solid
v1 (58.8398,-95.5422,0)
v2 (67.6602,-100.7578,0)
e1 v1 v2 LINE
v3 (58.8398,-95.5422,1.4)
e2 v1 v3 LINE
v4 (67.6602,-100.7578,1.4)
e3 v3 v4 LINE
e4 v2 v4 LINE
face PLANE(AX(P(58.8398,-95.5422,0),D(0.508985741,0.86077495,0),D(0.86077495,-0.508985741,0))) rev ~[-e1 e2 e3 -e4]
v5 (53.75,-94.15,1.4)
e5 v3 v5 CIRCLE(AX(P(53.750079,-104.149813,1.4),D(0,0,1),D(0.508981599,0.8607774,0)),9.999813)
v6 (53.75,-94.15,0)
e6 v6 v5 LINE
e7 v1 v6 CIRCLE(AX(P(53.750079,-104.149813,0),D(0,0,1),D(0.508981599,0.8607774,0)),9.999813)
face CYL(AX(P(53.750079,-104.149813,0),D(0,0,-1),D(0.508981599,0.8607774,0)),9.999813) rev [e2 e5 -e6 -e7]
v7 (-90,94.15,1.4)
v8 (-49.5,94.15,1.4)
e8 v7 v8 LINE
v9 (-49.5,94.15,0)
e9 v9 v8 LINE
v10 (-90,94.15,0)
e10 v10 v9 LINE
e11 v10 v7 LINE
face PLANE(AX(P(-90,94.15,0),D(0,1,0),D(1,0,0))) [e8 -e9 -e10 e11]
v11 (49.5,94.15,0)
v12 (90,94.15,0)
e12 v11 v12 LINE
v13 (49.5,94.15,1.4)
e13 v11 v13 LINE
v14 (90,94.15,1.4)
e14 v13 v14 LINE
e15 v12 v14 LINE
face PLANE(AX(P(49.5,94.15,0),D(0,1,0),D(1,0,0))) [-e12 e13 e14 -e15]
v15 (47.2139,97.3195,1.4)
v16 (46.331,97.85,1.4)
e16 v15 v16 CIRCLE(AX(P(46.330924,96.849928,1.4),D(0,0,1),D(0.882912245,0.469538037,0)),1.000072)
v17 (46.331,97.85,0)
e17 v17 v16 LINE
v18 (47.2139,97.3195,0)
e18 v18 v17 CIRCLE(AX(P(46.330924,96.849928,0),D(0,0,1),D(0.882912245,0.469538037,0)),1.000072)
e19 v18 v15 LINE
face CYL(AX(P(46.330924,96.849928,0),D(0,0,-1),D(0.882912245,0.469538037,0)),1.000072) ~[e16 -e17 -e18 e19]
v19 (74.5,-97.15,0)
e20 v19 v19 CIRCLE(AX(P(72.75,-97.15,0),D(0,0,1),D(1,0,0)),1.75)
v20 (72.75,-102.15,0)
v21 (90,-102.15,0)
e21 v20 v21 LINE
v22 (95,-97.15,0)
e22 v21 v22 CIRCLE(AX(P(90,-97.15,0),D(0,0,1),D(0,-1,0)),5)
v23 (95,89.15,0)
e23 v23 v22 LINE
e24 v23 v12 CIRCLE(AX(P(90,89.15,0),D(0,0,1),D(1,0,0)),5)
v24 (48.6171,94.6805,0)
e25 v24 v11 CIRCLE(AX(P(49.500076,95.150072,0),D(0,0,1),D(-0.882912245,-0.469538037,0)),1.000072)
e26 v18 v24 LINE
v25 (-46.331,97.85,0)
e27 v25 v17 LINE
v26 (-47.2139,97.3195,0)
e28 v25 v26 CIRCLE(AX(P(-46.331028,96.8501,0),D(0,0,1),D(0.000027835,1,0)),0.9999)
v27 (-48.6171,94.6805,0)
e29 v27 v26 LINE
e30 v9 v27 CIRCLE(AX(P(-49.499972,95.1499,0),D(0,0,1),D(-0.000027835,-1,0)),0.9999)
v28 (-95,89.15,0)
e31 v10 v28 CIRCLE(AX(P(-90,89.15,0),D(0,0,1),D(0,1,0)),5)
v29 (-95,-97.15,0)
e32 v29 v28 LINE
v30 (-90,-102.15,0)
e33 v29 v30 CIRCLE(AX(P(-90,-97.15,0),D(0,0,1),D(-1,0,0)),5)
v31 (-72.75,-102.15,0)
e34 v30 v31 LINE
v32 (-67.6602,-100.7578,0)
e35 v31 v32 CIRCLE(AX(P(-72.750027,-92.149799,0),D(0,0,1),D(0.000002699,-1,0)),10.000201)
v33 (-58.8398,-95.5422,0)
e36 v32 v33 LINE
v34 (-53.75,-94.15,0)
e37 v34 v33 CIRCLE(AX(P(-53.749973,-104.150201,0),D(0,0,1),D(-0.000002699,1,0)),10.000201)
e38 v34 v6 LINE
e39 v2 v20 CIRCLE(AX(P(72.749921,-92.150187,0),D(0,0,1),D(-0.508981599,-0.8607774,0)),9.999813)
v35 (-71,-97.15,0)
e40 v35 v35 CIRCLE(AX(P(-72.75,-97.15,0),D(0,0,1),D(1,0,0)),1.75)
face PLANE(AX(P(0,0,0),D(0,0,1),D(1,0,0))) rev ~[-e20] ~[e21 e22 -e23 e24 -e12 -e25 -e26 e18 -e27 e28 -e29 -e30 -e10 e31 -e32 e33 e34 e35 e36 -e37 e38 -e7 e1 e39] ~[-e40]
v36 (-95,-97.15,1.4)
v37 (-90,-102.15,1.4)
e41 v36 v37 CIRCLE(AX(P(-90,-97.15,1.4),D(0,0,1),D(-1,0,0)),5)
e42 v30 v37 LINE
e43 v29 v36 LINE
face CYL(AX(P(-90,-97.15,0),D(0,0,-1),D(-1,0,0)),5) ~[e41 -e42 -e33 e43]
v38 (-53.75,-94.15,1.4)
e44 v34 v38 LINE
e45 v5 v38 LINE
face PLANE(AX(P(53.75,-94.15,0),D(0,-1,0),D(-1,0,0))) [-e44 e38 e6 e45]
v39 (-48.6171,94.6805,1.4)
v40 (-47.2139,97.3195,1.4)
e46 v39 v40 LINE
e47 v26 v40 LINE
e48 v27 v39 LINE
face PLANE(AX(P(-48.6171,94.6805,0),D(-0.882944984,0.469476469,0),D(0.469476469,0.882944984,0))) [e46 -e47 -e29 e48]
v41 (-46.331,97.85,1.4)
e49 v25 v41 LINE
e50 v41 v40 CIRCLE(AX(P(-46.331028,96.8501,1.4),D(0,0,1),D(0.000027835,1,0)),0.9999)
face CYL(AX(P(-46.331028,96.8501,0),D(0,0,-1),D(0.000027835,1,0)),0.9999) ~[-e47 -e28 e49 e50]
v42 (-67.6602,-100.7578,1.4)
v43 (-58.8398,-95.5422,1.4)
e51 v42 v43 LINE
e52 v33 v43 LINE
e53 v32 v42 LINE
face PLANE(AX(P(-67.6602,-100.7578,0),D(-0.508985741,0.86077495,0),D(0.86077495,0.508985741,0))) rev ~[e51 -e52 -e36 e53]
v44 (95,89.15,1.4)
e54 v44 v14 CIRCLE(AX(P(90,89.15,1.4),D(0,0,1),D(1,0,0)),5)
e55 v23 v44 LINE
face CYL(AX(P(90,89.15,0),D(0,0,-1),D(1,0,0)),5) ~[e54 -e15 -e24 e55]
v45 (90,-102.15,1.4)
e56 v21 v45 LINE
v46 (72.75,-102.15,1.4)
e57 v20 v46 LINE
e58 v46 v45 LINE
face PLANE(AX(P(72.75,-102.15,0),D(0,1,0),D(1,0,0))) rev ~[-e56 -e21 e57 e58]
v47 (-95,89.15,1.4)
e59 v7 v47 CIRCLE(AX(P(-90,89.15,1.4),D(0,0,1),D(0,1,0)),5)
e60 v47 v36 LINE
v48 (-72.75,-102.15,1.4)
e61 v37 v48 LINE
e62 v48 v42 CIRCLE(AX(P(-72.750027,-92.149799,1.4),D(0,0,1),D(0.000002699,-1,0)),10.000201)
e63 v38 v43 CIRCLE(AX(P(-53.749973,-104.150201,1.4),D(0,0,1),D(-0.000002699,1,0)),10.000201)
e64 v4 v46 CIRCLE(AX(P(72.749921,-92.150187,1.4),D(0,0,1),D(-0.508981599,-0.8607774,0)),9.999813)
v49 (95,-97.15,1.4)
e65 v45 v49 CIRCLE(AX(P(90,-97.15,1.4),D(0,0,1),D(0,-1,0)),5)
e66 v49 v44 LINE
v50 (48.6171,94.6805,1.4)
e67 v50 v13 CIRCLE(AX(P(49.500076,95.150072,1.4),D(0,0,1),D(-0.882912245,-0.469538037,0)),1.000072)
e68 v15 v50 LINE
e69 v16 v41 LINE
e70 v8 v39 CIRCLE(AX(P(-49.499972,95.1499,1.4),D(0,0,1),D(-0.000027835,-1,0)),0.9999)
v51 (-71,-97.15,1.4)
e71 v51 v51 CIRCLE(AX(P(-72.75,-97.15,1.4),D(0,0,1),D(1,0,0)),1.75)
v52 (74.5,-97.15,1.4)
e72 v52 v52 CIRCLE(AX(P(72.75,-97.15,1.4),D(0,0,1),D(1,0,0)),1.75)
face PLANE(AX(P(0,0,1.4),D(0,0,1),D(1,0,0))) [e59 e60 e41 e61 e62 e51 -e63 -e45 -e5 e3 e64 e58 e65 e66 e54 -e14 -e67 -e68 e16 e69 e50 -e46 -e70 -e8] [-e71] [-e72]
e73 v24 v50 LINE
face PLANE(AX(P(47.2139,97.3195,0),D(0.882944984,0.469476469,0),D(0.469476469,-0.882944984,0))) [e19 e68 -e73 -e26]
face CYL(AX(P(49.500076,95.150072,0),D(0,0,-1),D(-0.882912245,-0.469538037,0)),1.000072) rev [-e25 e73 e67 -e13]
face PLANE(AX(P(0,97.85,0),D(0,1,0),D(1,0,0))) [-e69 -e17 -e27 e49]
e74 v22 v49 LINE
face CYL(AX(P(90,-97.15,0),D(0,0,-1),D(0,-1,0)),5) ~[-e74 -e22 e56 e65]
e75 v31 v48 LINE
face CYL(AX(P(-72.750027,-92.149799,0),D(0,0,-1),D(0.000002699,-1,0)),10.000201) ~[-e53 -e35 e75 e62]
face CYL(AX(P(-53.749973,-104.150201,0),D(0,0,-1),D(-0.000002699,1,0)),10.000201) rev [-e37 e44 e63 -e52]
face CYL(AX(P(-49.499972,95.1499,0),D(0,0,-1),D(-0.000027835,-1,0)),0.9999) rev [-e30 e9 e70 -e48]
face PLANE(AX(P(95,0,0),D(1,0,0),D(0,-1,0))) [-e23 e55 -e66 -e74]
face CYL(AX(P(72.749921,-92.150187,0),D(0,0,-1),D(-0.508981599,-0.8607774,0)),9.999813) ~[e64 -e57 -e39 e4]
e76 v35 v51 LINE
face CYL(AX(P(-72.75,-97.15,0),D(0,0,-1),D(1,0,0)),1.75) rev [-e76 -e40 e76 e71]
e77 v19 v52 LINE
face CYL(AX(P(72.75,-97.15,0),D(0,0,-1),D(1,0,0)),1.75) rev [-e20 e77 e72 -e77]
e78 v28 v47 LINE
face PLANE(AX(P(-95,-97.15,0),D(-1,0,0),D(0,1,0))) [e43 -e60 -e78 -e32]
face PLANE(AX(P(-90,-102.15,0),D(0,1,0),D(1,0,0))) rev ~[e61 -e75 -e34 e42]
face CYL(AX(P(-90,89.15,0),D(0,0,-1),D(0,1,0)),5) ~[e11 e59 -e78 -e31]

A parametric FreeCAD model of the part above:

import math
import FreeCAD as App
import Part
import Sketcher
from FreeCAD import Vector
Q = App.Units.Quantity

doc = App.newDocument("Part")
body = doc.addObject("PartDesign::Body", "Body")

sketch1 = doc.addObject("Sketcher::SketchObject", "Sketch")
body.addObject(sketch1)
sketch1.AttachmentSupport = (doc.XY_Plane, [""])
sketch1.MapMode = "FlatFace"
sketch1.addGeometry(Part.ArcOfCircle(Part.Circle(Vector(53.8, -104.2, 0), Vector(0, 0, 1), 10), math.radians(59), math.radians(90)), False)
sketch1.addGeometry(Part.LineSegment(Vector(58.8, -95.5, 0), Vector(67.7, -100.8, 0)), False)
sketch1.addGeometry(Part.ArcOfCircle(Part.Circle(Vector(72.8, -92.2, 0), Vector(0, 0, 1), 10), math.radians(-121), math.radians(-90)), False)
sketch1.addGeometry(Part.LineSegment(Vector(72.8, -102.2, 0), Vector(90, -102.2, 0)), False)
sketch1.addGeometry(Part.ArcOfCircle(Part.Circle(Vector(90, -97.2, 0), Vector(0, 0, 1), 5), math.radians(-90), math.radians(0)), False)
sketch1.addGeometry(Part.LineSegment(Vector(95, -97.2, 0), Vector(95, 89.2, 0)), False)
sketch1.addGeometry(Part.ArcOfCircle(Part.Circle(Vector(90, 89.2, 0), Vector(0, 0, 1), 5), math.radians(0), math.radians(90)), False)
sketch1.addGeometry(Part.LineSegment(Vector(90, 94.2, 0), Vector(49.5, 94.2, 0)), False)
sketch1.addGeometry(Part.ArcOfCircle(Part.Circle(Vector(49.5, 95.2, 0), Vector(0, 0, 1), 1), math.radians(-152), math.radians(-90)), False)
sketch1.addGeometry(Part.LineSegment(Vector(48.6, 94.7, 0), Vector(47.2, 97.3, 0)), False)
sketch1.addGeometry(Part.ArcOfCircle(Part.Circle(Vector(46.3, 96.8, 0), Vector(0, 0, 1), 1), math.radians(28), math.radians(90)), False)
sketch1.addGeometry(Part.LineSegment(Vector(46.3, 97.8, 0), Vector(-46.3, 97.8, 0)), False)
sketch1.addGeometry(Part.ArcOfCircle(Part.Circle(Vector(-46.3, 96.8, 0), Vector(0, 0, 1), 1), math.radians(90), math.radians(152)), False)
sketch1.addGeometry(Part.LineSegment(Vector(-47.2, 97.3, 0), Vector(-48.6, 94.7, 0)), False)
sketch1.addGeometry(Part.ArcOfCircle(Part.Circle(Vector(-49.5, 95.2, 0), Vector(0, 0, 1), 1), math.radians(-90), math.radians(-28)), False)
sketch1.addGeometry(Part.LineSegment(Vector(-49.5, 94.2, 0), Vector(-90, 94.2, 0)), False)
sketch1.addGeometry(Part.ArcOfCircle(Part.Circle(Vector(-90, 89.2, 0), Vector(0, 0, 1), 5), math.radians(90), math.radians(180)), False)
sketch1.addGeometry(Part.LineSegment(Vector(-95, 89.2, 0), Vector(-95, -97.2, 0)), False)
sketch1.addGeometry(Part.ArcOfCircle(Part.Circle(Vector(-90, -97.2, 0), Vector(0, 0, 1), 5), math.radians(180), math.radians(270)), False)
sketch1.addGeometry(Part.LineSegment(Vector(-90, -102.2, 0), Vector(-72.8, -102.2, 0)), False)
sketch1.addGeometry(Part.ArcOfCircle(Part.Circle(Vector(-72.8, -92.2, 0), Vector(0, 0, 1), 10), math.radians(-90), math.radians(-59)), False)
sketch1.addGeometry(Part.LineSegment(Vector(-67.7, -100.8, 0), Vector(-58.8, -95.5, 0)), False)
sketch1.addGeometry(Part.ArcOfCircle(Part.Circle(Vector(-53.8, -104.2, 0), Vector(0, 0, 1), 10), math.radians(90), math.radians(121)), False)
sketch1.addGeometry(Part.LineSegment(Vector(-53.8, -94.2, 0), Vector(53.8, -94.2, 0)), False)
sketch1.addGeometry(Part.Circle(Vector(72.8, -97.2, 0), Vector(0, 0, 1), 1.8), False)
sketch1.addGeometry(Part.Circle(Vector(-72.8, -97.2, 0), Vector(0, 0, 1), 1.8), False)
sketch1.addConstraint(Sketcher.Constraint("Tangent", 0, 1, 1, 1))
sketch1.addConstraint(Sketcher.Constraint("Tangent", 1, 2, 2, 1))
sketch1.addConstraint(Sketcher.Constraint("Tangent", 2, 2, 3, 1))
sketch1.addConstraint(Sketcher.Constraint("Tangent", 3, 2, 4, 1))
sketch1.addConstraint(Sketcher.Constraint("Tangent", 4, 2, 5, 1))
sketch1.addConstraint(Sketcher.Constraint("Tangent", 5, 2, 6, 1))
sketch1.addConstraint(Sketcher.Constraint("Tangent", 6, 2, 7, 1))
sketch1.addConstraint(Sketcher.Constraint("Tangent", 7, 2, 8, 2))
sketch1.addConstraint(Sketcher.Constraint("Tangent", 8, 1, 9, 1))
sketch1.addConstraint(Sketcher.Constraint("Tangent", 9, 2, 10, 1))
sketch1.addConstraint(Sketcher.Constraint("Tangent", 10, 2, 11, 1))
sketch1.addConstraint(Sketcher.Constraint("Tangent", 11, 2, 12, 1))
sketch1.addConstraint(Sketcher.Constraint("Tangent", 12, 2, 13, 1))
sketch1.addConstraint(Sketcher.Constraint("Tangent", 13, 2, 14, 2))
sketch1.addConstraint(Sketcher.Constraint("Tangent", 14, 1, 15, 1))
sketch1.addConstraint(Sketcher.Constraint("Tangent", 15, 2, 16, 1))
sketch1.addConstraint(Sketcher.Constraint("Tangent", 16, 2, 17, 1))
sketch1.addConstraint(Sketcher.Constraint("Tangent", 17, 2, 18, 1))
sketch1.addConstraint(Sketcher.Constraint("Tangent", 18, 2, 19, 1))
sketch1.addConstraint(Sketcher.Constraint("Tangent", 19, 2, 20, 1))
sketch1.addConstraint(Sketcher.Constraint("Tangent", 20, 2, 21, 1))
sketch1.addConstraint(Sketcher.Constraint("Tangent", 21, 2, 22, 2))
sketch1.addConstraint(Sketcher.Constraint("Tangent", 22, 1, 23, 1))
sketch1.addConstraint(Sketcher.Constraint("Tangent", 23, 2, 0, 2))
sketch1.addConstraint(Sketcher.Constraint("Horizontal", 3))
sketch1.addConstraint(Sketcher.Constraint("Vertical", 5))
sketch1.addConstraint(Sketcher.Constraint("Horizontal", 7))
sketch1.addConstraint(Sketcher.Constraint("Horizontal", 11))
sketch1.addConstraint(Sketcher.Constraint("Horizontal", 15))
sketch1.addConstraint(Sketcher.Constraint("Vertical", 17))
sketch1.addConstraint(Sketcher.Constraint("Horizontal", 19))
sketch1.addConstraint(Sketcher.Constraint("Horizontal", 23))
sketch1.addConstraint(Sketcher.Constraint("Equal", 0, 2))
sketch1.addConstraint(Sketcher.Constraint("Equal", 4, 6))
sketch1.addConstraint(Sketcher.Constraint("Equal", 8, 10))
sketch1.addConstraint(Sketcher.Constraint("Equal", 10, 12))
sketch1.addConstraint(Sketcher.Constraint("Equal", 12, 14))
sketch1.addConstraint(Sketcher.Constraint("Equal", 6, 16))
sketch1.addConstraint(Sketcher.Constraint("Equal", 16, 18))
sketch1.addConstraint(Sketcher.Constraint("Equal", 2, 20))
sketch1.addConstraint(Sketcher.Constraint("Equal", 20, 22))
sketch1.addConstraint(Sketcher.Constraint("Equal", 24, 25))
sketch1.addConstraint(Sketcher.Constraint("Symmetric", 8, 3, 14, 3, -2))
sketch1.addConstraint(Sketcher.Constraint("Symmetric", 4, 3, 18, 3, -2))
sketch1.addConstraint(Sketcher.Constraint("Symmetric", 24, 3, 25, 3, -2))
sketch1.addConstraint(Sketcher.Constraint("Symmetric", 1, 2, 20, 2, -2))
sketch1.addConstraint(Sketcher.Constraint("Horizontal", 18, 3, 24, 3))
sketch1.addConstraint(Sketcher.Constraint("Horizontal", 9, 2, 12, 2))
sketch1.addConstraint(Sketcher.Constraint("Vertical", 2, 3, 24, 3))
sketch1.addConstraint(Sketcher.Constraint("Radius", 0, Q("10 mm")))
sketch1.addConstraint(Sketcher.Constraint("Radius", 4, Q("5 mm")))
sketch1.addConstraint(Sketcher.Constraint("Radius", 8, Q("1 mm")))
sketch1.addConstraint(Sketcher.Constraint("Diameter", 24, Q("3.5 mm")))
sketch1.addConstraint(Sketcher.Constraint("DistanceX", 0, 3, 2, 3, Q("19 mm")))
sketch1.addConstraint(Sketcher.Constraint("DistanceX", 8, 3, 5, 2, Q("45.5 mm")))
sketch1.addConstraint(Sketcher.Constraint("DistanceY", 7, 2, 10, 2, Q("3.7 mm")))
sketch1.addConstraint(Sketcher.Constraint("Angle", 9, Q("118.0003 deg")))
sketch1.addConstraint(Sketcher.Constraint("DistanceX", 24, 3, 4, 2, Q("22.25 mm")))
sketch1.addConstraint(Sketcher.Constraint("DistanceX", 23, 1, 23, 2, Q("107.5 mm")))
sketch1.addConstraint(Sketcher.Constraint("DistanceY", 5, 1, 5, 2, Q("186.3 mm")))
sketch1.addConstraint(Sketcher.Constraint("DistanceY", 0, 3, 2, 3, Q("12 mm")))
sketch1.addConstraint(Sketcher.Constraint("DistanceY", 0, 3, -1, 1, Q("104.15 mm")))
pad1 = doc.addObject("PartDesign::Pad", "Pad")
body.addObject(pad1)
pad1.Profile = sketch1
pad1.Length = 1.4

doc.recompute()
